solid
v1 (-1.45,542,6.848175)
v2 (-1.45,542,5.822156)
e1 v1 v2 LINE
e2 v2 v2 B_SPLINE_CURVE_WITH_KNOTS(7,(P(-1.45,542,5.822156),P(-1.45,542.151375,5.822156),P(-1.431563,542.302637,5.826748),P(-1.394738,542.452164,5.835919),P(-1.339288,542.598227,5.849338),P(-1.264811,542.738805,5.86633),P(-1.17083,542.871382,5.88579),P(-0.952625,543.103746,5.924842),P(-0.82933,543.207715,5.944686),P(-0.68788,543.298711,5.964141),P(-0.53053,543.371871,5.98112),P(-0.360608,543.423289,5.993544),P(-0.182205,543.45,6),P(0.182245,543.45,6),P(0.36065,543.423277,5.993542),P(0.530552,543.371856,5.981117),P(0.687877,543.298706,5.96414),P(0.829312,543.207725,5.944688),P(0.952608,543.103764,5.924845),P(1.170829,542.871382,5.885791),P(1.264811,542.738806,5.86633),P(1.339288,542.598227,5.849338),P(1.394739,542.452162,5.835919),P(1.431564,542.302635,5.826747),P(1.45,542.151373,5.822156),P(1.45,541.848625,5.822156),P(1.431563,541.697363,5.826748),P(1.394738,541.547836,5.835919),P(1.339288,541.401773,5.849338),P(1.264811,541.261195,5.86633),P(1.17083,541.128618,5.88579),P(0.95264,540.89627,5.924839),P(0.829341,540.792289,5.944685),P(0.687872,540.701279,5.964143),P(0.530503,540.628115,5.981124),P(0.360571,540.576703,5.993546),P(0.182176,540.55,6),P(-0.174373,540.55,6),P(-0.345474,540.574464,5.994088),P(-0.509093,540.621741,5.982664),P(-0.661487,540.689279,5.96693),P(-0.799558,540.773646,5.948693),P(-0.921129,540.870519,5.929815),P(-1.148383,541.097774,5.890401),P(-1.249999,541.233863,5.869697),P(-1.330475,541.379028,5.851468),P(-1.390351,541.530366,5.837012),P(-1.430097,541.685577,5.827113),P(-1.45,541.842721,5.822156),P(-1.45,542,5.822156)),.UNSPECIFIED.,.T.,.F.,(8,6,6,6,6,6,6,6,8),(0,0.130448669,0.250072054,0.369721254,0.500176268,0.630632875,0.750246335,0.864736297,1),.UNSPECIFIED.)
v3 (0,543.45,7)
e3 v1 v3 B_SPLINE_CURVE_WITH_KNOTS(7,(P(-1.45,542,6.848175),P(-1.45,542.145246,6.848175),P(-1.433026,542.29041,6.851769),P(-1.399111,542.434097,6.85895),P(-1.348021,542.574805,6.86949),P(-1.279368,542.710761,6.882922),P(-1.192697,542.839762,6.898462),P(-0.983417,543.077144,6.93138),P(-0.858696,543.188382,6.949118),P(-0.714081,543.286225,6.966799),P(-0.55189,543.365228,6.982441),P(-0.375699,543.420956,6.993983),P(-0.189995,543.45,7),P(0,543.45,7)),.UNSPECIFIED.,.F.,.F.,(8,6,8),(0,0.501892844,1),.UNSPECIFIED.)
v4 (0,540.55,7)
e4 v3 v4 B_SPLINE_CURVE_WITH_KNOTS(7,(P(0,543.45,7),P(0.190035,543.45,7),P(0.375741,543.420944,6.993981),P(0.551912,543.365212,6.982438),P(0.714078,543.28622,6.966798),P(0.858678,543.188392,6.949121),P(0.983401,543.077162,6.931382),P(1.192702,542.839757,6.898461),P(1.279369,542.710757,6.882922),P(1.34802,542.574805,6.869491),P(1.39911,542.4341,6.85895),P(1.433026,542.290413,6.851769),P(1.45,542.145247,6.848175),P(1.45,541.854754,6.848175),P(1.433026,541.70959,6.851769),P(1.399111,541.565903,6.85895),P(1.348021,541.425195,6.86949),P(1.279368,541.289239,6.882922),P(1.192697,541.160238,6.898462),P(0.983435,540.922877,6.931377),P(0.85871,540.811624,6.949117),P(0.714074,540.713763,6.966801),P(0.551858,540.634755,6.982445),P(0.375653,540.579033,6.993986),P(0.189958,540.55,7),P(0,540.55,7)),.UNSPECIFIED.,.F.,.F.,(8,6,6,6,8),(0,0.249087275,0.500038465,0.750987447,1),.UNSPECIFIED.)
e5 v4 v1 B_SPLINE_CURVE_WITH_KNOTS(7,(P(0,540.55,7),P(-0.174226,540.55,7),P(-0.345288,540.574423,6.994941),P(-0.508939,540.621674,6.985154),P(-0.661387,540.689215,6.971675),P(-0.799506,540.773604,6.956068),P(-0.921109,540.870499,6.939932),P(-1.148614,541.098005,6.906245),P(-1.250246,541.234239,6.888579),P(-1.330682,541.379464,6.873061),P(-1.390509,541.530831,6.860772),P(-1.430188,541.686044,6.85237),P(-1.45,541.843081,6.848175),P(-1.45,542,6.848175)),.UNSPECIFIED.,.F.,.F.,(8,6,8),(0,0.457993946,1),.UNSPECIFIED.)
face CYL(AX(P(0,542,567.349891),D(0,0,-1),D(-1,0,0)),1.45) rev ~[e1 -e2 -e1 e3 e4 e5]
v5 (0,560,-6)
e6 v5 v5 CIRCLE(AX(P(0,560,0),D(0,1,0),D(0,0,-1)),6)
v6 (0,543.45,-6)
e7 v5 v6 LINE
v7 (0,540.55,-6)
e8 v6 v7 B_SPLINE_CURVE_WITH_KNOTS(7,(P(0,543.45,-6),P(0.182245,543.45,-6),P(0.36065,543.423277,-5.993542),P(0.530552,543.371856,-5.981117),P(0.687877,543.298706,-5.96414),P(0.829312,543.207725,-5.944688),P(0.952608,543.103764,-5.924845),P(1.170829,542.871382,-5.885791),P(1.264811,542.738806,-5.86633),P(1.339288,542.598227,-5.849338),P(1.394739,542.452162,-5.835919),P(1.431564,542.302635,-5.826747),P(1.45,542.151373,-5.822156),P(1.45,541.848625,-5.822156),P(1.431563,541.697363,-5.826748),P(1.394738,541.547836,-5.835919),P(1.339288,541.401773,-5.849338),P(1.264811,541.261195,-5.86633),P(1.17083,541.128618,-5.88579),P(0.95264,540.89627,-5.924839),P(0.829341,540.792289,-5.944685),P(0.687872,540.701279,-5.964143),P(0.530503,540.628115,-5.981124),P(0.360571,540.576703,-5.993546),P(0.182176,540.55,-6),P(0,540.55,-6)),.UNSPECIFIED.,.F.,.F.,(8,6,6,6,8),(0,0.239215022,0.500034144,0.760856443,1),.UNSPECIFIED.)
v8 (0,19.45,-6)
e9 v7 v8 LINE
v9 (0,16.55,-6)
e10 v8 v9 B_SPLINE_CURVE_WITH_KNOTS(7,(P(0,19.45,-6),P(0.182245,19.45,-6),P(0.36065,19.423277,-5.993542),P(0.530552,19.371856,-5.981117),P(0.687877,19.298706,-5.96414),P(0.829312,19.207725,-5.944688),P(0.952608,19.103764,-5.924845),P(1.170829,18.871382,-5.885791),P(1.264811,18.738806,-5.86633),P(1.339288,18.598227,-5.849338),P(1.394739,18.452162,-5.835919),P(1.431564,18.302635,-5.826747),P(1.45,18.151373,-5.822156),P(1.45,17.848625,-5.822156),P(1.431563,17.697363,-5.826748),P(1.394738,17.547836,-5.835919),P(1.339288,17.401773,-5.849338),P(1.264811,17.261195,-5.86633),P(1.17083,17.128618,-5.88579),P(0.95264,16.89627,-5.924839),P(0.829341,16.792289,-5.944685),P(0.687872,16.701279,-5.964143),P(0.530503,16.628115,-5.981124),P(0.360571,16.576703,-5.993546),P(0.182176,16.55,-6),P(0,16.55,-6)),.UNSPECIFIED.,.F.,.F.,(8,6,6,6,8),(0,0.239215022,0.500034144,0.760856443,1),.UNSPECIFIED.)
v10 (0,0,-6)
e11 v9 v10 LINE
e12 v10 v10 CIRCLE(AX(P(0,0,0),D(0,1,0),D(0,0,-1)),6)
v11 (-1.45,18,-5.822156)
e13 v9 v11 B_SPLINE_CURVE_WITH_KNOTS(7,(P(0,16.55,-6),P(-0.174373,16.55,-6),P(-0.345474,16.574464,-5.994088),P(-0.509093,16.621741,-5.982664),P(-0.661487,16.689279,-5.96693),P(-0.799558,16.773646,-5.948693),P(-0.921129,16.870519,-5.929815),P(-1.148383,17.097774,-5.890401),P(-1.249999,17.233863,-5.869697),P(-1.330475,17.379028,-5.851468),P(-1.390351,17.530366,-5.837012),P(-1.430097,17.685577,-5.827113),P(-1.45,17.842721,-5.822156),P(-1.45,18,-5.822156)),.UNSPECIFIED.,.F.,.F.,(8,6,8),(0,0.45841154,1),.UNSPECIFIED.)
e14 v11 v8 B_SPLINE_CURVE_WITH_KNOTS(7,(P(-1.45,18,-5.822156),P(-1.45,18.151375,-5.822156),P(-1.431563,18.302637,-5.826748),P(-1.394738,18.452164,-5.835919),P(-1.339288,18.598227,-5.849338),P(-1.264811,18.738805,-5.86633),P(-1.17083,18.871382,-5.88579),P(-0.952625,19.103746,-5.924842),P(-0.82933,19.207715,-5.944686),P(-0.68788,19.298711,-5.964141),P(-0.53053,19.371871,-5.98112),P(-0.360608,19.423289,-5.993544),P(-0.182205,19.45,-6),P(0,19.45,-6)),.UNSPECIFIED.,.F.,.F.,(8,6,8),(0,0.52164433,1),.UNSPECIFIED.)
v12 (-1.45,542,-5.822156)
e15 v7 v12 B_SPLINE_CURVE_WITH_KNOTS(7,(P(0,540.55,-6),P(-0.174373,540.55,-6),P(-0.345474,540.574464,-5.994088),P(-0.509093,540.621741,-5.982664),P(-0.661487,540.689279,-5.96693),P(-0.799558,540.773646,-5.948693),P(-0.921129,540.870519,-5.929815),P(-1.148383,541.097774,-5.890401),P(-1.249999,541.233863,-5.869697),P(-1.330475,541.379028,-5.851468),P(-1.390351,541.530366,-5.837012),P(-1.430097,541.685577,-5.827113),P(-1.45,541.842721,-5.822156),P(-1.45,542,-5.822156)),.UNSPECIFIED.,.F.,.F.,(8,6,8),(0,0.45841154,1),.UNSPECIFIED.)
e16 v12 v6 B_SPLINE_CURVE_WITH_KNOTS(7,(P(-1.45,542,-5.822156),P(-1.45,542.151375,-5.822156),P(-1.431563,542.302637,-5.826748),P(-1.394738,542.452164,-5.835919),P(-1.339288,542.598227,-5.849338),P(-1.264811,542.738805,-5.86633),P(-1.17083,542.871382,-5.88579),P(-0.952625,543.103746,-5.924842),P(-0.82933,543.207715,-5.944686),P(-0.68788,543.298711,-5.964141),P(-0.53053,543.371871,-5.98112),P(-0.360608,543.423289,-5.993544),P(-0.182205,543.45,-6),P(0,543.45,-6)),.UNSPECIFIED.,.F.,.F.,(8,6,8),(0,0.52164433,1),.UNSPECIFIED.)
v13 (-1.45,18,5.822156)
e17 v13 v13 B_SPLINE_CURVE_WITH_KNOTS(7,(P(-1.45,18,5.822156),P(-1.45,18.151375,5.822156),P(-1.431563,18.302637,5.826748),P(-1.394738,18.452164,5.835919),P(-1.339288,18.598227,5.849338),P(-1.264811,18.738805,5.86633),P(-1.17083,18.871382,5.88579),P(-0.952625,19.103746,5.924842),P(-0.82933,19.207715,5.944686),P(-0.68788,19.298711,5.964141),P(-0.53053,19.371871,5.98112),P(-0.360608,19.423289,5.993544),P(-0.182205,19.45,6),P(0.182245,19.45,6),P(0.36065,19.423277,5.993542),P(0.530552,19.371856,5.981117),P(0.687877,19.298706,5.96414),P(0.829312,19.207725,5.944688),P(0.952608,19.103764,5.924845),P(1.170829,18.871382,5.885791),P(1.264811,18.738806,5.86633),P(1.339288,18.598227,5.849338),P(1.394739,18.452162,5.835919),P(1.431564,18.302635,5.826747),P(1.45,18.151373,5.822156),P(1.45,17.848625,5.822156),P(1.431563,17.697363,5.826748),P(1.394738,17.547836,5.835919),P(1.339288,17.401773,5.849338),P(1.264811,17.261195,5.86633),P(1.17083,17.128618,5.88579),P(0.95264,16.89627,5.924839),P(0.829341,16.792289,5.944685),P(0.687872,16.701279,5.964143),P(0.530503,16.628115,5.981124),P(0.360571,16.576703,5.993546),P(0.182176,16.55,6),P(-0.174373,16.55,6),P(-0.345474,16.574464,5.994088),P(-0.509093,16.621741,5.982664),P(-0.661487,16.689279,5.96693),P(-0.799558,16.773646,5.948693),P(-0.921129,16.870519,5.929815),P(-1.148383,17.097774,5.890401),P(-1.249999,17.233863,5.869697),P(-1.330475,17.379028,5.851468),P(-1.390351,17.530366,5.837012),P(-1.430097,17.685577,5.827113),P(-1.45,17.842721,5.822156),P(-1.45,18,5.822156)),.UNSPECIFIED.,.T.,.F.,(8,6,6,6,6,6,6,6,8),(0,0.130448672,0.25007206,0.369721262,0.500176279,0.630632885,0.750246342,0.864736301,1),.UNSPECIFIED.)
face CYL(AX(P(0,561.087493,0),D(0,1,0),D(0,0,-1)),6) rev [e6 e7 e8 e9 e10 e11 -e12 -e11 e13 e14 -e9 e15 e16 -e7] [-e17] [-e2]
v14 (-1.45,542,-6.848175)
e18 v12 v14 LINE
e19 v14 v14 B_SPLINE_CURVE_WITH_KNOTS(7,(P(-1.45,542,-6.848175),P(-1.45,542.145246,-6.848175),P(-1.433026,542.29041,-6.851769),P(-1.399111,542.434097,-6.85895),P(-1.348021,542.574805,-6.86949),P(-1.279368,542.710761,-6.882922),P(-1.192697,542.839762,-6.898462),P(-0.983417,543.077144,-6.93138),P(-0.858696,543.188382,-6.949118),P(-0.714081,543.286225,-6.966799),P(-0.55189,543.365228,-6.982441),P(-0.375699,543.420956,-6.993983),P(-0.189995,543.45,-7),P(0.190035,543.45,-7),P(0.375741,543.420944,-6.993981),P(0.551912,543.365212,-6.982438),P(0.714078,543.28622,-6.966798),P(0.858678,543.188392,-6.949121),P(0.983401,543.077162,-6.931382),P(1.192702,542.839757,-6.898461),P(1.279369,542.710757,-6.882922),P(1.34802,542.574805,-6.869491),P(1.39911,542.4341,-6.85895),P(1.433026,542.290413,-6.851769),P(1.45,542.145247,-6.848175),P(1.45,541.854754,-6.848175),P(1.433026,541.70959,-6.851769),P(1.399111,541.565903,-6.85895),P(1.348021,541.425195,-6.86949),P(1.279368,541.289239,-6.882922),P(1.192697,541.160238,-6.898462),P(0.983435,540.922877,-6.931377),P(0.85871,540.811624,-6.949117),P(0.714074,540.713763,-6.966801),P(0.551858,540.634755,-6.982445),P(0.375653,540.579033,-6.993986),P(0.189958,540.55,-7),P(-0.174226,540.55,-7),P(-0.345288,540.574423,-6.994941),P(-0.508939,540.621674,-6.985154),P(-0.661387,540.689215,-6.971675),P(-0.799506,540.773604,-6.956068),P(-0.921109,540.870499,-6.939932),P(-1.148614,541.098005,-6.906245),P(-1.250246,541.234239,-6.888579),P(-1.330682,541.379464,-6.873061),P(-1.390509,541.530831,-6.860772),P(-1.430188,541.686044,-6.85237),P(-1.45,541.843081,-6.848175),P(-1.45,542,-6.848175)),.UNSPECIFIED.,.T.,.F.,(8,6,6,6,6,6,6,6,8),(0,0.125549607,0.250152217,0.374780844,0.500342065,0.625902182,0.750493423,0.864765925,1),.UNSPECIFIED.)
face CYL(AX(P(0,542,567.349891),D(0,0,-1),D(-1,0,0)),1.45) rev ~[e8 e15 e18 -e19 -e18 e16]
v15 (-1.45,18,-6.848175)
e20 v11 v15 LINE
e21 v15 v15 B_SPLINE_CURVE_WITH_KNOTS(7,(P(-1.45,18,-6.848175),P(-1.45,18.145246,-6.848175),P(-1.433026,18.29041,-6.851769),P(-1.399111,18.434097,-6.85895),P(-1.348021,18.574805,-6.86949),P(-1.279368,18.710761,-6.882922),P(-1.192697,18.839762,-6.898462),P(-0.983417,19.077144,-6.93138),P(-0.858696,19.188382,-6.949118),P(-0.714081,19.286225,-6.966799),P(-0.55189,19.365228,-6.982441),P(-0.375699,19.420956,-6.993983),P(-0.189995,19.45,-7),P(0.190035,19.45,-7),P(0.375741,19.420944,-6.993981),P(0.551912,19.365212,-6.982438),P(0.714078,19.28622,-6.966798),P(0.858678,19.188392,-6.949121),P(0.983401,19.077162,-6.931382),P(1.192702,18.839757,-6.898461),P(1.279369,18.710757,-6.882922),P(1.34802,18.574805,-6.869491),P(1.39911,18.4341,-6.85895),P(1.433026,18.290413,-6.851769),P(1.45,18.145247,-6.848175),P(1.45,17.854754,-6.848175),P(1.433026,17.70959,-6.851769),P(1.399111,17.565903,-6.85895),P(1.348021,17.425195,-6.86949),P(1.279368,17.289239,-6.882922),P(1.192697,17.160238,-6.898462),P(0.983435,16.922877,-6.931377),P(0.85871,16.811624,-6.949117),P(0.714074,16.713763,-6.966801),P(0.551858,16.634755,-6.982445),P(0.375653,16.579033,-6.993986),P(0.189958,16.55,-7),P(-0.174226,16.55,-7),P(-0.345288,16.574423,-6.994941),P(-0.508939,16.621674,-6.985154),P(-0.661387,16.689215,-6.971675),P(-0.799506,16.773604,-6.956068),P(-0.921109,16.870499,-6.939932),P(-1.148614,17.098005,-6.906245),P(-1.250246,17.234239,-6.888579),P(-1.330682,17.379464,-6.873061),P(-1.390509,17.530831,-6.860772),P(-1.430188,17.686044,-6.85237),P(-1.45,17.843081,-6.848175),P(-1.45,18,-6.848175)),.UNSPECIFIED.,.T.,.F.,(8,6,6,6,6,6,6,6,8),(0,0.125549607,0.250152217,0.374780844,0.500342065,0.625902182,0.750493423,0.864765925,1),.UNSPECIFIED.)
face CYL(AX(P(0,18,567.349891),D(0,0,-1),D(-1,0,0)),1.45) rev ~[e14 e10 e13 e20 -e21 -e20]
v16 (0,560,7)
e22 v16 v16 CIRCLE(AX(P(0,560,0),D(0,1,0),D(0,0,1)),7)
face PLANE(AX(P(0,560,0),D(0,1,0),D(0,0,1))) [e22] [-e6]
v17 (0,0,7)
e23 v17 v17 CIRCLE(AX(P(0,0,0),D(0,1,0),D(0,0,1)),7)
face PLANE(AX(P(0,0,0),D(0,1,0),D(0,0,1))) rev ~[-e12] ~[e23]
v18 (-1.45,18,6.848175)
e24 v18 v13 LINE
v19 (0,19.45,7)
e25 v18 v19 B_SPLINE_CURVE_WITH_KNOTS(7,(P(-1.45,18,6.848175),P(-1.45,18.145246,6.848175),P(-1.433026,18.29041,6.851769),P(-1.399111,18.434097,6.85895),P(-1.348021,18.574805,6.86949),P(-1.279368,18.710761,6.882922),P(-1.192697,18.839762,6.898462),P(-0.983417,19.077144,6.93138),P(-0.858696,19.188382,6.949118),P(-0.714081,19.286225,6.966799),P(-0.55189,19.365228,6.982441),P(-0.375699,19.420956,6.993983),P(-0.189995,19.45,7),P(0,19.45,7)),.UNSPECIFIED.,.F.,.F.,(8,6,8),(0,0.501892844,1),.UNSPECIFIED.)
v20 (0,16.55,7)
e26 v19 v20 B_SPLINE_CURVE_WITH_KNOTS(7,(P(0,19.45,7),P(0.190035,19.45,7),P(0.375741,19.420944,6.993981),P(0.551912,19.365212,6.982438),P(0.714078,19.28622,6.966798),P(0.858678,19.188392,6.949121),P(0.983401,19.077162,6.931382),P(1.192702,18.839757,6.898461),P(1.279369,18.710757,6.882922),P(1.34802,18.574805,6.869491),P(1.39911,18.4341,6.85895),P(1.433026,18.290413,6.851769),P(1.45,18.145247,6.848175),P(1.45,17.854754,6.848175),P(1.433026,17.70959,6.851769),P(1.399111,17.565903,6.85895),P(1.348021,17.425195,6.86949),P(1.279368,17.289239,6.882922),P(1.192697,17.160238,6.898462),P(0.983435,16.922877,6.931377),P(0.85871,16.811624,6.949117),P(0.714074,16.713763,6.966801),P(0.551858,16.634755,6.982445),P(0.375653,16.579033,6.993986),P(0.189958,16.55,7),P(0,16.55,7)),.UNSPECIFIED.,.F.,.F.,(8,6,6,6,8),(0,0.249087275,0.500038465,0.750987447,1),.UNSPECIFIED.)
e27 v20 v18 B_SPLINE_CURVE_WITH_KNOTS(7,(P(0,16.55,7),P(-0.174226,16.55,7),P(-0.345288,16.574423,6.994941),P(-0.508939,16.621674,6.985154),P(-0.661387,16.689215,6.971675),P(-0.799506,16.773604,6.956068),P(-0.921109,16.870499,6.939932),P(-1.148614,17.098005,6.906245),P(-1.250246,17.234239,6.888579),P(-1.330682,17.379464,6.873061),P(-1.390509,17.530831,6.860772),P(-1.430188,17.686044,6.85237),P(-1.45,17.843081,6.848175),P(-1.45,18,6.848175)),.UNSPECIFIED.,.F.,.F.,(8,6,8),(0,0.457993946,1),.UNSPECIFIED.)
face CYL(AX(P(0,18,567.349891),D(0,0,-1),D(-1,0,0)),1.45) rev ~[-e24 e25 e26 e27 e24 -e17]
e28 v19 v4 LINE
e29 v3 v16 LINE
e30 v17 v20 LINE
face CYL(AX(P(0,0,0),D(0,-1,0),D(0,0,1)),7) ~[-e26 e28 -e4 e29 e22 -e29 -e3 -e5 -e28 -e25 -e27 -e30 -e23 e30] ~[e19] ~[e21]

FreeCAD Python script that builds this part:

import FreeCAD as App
import Part
import Sketcher
Q = App.Units.Quantity

doc = App.newDocument("Part")
params = doc.addObject("Spreadsheet::Sheet", "Params")
for row, (alias, value) in enumerate([
    ("sketch1_diameter", "14 mm"),
    ("pad1_length", "560 mm"),
    ("sketch2_diameter", "12 mm"),
    ("sketch3_diameter", "2.9 mm"),
    ("hole_diameter", "2.9 mm"),
], start=1):
    params.set(f"A{row}", alias)
    params.set(f"B{row}", "=" + value)
    params.setAlias(f"B{row}", alias)

body = doc.addObject("PartDesign::Body", "Body")

# Sketch on XZ plane
sketch1 = body.newObject("Sketcher::SketchObject", "Sketch")
sketch1.AttachmentSupport = (doc.getObject("XZ_Plane"), [""])
sketch1.MapMode = "FlatFace"
sketch1.addGeometry(Part.Circle(App.Vector(0, 0, 0), App.Vector(0, 0, 1), 7), False)
sketch1.addConstraint([
    Sketcher.Constraint("Coincident", 0, 3, -1, 1),
    Sketcher.Constraint("Diameter", 0, Q("14 mm")),
])
sketch1.setExpression("Constraints[1]", "Params.sketch1_diameter")
pad1 = body.newObject("PartDesign::Pad", "Pad")
pad1.Profile = sketch1
pad1.setExpression("Length", "Params.pad1_length")
pad1.Reversed = True

# Sketch on XZ plane
sketch2 = body.newObject("Sketcher::SketchObject", "Sketch001")
sketch2.AttachmentSupport = (doc.getObject("XZ_Plane"), [""])
sketch2.MapMode = "FlatFace"
sketch2.addGeometry(Part.Circle(App.Vector(0, 0, 0), App.Vector(0, 0, 1), 6), False)
sketch2.addConstraint([
    Sketcher.Constraint("Coincident", 0, 3, -1, 1),
    Sketcher.Constraint("Diameter", 0, Q("12 mm")),
])
sketch2.setExpression("Constraints[1]", "Params.sketch2_diameter")
pocket1 = body.newObject("PartDesign::Pocket", "Pocket")
pocket1.Profile = sketch2
pocket1.Type = "ThroughAll"
pocket1.Midplane = True

# Sketch on XY plane
sketch3 = body.newObject("Sketcher::SketchObject", "Sketch002")
sketch3.AttachmentSupport = (doc.getObject("XY_Plane"), [""])
sketch3.MapMode = "FlatFace"
sketch3.AttachmentOffset = App.Placement(App.Vector(0, 0, 7), App.Rotation())
sketch3.addGeometry([
    Part.Circle(App.Vector(0, 18, 0), App.Vector(0, 0, 1), 1.4),
    Part.Circle(App.Vector(0, 542, 0), App.Vector(0, 0, 1), 1.4),
], False)
sketch3.addConstraint([
    Sketcher.Constraint("Equal", 0, 1),
    Sketcher.Constraint("PointOnObject", 0, 3, -2),
    Sketcher.Constraint("PointOnObject", 1, 3, -2),
    Sketcher.Constraint("Diameter", 0, Q("2.9 mm")),
    Sketcher.Constraint("DistanceY", -1, 1, 0, 3, Q("18 mm")),
    Sketcher.Constraint("DistanceY", -1, 1, 1, 3, Q("542 mm")),
])
sketch3.setExpression("Constraints[3]", "Params.sketch3_diameter")
doc.recompute()
hole = body.newObject("PartDesign::Hole", "Hole")
hole.Profile = sketch3
hole.ThreadType = "None"
hole.setExpression("Diameter", "Params.hole_diameter")
hole.DepthType = "ThroughAll"

doc.recompute()
